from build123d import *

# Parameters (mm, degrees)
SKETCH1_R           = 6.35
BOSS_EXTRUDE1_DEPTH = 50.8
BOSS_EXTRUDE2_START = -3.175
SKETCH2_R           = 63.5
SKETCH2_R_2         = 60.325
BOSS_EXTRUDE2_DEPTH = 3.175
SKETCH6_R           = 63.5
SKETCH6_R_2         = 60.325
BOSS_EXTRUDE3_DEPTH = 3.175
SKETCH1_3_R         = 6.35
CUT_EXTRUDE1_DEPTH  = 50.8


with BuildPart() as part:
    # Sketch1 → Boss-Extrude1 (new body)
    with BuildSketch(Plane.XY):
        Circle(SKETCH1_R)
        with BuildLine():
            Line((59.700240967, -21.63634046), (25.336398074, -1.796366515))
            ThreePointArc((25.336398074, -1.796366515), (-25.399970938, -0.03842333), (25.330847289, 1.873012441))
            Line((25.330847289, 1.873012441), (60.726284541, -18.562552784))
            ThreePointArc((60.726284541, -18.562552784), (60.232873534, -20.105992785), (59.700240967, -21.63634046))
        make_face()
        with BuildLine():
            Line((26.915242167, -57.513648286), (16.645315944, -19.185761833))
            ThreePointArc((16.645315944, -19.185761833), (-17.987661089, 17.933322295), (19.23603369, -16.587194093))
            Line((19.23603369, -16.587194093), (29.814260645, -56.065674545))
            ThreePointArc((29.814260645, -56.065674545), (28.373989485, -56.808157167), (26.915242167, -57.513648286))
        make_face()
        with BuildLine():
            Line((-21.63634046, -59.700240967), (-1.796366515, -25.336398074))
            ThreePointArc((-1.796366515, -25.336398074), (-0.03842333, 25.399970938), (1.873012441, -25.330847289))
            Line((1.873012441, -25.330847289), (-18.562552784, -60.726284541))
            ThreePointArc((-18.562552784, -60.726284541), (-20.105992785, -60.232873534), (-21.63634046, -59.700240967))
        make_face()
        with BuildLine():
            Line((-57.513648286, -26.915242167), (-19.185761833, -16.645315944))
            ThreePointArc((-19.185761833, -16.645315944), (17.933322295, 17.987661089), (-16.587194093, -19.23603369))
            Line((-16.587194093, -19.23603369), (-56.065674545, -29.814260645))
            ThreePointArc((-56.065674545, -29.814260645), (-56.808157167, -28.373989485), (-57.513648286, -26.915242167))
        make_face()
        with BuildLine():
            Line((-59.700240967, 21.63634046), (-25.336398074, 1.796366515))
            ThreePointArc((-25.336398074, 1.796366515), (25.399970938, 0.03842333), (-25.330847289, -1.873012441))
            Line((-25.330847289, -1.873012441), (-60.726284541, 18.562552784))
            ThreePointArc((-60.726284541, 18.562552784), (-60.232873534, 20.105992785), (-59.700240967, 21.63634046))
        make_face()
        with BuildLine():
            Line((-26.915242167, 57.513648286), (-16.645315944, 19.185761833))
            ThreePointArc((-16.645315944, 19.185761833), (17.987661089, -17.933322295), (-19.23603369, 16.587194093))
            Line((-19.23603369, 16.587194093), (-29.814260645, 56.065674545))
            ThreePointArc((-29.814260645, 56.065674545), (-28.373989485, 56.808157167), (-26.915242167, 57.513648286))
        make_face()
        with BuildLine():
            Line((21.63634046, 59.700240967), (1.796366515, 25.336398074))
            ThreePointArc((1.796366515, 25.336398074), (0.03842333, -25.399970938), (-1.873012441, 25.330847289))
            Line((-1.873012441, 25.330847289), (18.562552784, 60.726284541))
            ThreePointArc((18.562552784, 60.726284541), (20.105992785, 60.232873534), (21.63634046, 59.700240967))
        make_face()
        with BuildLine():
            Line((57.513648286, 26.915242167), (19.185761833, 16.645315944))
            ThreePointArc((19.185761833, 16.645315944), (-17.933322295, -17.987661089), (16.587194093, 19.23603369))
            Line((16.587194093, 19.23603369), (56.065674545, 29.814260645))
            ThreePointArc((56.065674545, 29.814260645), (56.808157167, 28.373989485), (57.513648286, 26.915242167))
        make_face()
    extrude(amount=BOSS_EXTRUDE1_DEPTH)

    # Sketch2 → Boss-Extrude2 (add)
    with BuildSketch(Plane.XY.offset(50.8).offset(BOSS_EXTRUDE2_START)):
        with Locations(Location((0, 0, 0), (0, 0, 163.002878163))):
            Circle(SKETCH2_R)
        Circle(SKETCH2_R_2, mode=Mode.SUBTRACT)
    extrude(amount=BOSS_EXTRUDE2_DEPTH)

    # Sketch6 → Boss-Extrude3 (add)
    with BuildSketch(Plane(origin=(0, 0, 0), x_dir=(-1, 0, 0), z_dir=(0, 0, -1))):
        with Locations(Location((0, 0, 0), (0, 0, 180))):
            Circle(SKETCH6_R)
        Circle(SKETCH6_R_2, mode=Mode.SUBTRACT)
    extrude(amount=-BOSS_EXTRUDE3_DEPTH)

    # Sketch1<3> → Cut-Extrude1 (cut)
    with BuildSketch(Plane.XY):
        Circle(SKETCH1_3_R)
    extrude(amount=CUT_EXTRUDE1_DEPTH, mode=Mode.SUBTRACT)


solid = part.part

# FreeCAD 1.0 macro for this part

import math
import FreeCAD as App
import Part
import Sketcher
Q = App.Units.Quantity

doc = App.newDocument("Part")
body = doc.addObject("PartDesign::Body", "Body")

# Sketch on XY plane
sketch1 = doc.addObject("Sketcher::SketchObject", "Sketch")
body.addObject(sketch1)
sketch1.AttachmentSupport = (doc.XY_Plane, [""])
sketch1.MapMode = "FlatFace"
sketch1.addGeometry(Part.LineSegment(App.Vector(25.3, -1.8, 0), App.Vector(59.7, -21.6, 0)), False)
sketch1.addGeometry(Part.ArcOfCircle(Part.Circle(App.Vector(0, 0, 0), App.Vector(0, 0, 1), 63.5), math.radians(-19.92), math.radians(-17)), False)
sketch1.addGeometry(Part.LineSegment(App.Vector(60.7, -18.6, 0), App.Vector(25.3, 1.9, 0)), False)
sketch1.addGeometry(Part.ArcOfCircle(Part.Circle(App.Vector(0, 0, 0), App.Vector(0, 0, 1), 25.4), math.radians(4), math.radians(41)), False)
sketch1.addGeometry(Part.LineSegment(App.Vector(19.2, 16.6, 0), App.Vector(57.5, 26.9, 0)), False)
sketch1.addGeometry(Part.ArcOfCircle(Part.Circle(App.Vector(0, 0, 0), App.Vector(0, 0, 1), 63.5), math.radians(25.08), math.radians(28)), False)
sketch1.addGeometry(Part.LineSegment(App.Vector(56.1, 29.8, 0), App.Vector(16.6, 19.2, 0)), False)
sketch1.addGeometry(Part.ArcOfCircle(Part.Circle(App.Vector(0, 0, 0), App.Vector(0, 0, 1), 25.4), math.radians(49), math.radians(86)), False)
sketch1.addGeometry(Part.LineSegment(App.Vector(1.8, 25.3, 0), App.Vector(21.6, 59.7, 0)), False)
sketch1.addGeometry(Part.ArcOfCircle(Part.Circle(App.Vector(0, 0, 0), App.Vector(0, 0, 1), 63.5), math.radians(70.08), math.radians(73)), False)
sketch1.addGeometry(Part.LineSegment(App.Vector(18.6, 60.7, 0), App.Vector(-1.9, 25.3, 0)), False)
sketch1.addGeometry(Part.ArcOfCircle(Part.Circle(App.Vector(0, 0, 0), App.Vector(0, 0, 1), 25.4), math.radians(94), math.radians(131)), False)
sketch1.addGeometry(Part.LineSegment(App.Vector(-16.6, 19.2, 0), App.Vector(-26.9, 57.5, 0)), False)
sketch1.addGeometry(Part.ArcOfCircle(Part.Circle(App.Vector(0, 0, 0), App.Vector(0, 0, 1), 63.5), math.radians(115.08), math.radians(118)), False)
sketch1.addGeometry(Part.LineSegment(App.Vector(-29.8, 56.1, 0), App.Vector(-19.2, 16.6, 0)), False)
sketch1.addGeometry(Part.ArcOfCircle(Part.Circle(App.Vector(0, 0, 0), App.Vector(0, 0, 1), 25.4), math.radians(139), math.radians(176)), False)
sketch1.addGeometry(Part.LineSegment(App.Vector(-25.3, 1.8, 0), App.Vector(-59.7, 21.6, 0)), False)
sketch1.addGeometry(Part.ArcOfCircle(Part.Circle(App.Vector(0, 0, 0), App.Vector(0, 0, 1), 63.5), math.radians(160.08), math.radians(163)), False)
sketch1.addGeometry(Part.LineSegment(App.Vector(-60.7, 18.6, 0), App.Vector(-25.3, -1.9, 0)), False)
sketch1.addGeometry(Part.ArcOfCircle(Part.Circle(App.Vector(0, 0, 0), App.Vector(0, 0, 1), 25.4), math.radians(-176), math.radians(-139)), False)
sketch1.addGeometry(Part.LineSegment(App.Vector(-19.2, -16.6, 0), App.Vector(-57.5, -26.9, 0)), False)
sketch1.addGeometry(Part.ArcOfCircle(Part.Circle(App.Vector(0, 0, 0), App.Vector(0, 0, 1), 63.5), math.radians(-154.92), math.radians(-152)), False)
sketch1.addGeometry(Part.LineSegment(App.Vector(-56.1, -29.8, 0), App.Vector(-16.6, -19.2, 0)), False)
sketch1.addGeometry(Part.ArcOfCircle(Part.Circle(App.Vector(0, 0, 0), App.Vector(0, 0, 1), 25.4), math.radians(-131), math.radians(-94)), False)
sketch1.addGeometry(Part.LineSegment(App.Vector(-1.8, -25.3, 0), App.Vector(-21.6, -59.7, 0)), False)
sketch1.addGeometry(Part.ArcOfCircle(Part.Circle(App.Vector(0, 0, 0), App.Vector(0, 0, 1), 63.5), math.radians(-109.92), math.radians(-107)), False)
sketch1.addGeometry(Part.LineSegment(App.Vector(-18.6, -60.7, 0), App.Vector(1.9, -25.3, 0)), False)
sketch1.addGeometry(Part.ArcOfCircle(Part.Circle(App.Vector(0, 0, 0), App.Vector(0, 0, 1), 25.4), math.radians(-86), math.radians(-49)), False)
sketch1.addGeometry(Part.LineSegment(App.Vector(16.6, -19.2, 0), App.Vector(26.9, -57.5, 0)), False)
sketch1.addGeometry(Part.ArcOfCircle(Part.Circle(App.Vector(0, 0, 0), App.Vector(0, 0, 1), 63.5), math.radians(-64.92), math.radians(-62)), False)
sketch1.addGeometry(Part.LineSegment(App.Vector(29.8, -56.1, 0), App.Vector(19.2, -16.6, 0)), False)
sketch1.addGeometry(Part.ArcOfCircle(Part.Circle(App.Vector(0, 0, 0), App.Vector(0, 0, 1), 25.4), math.radians(-41), math.radians(-4)), False)
sketch1.addConstraint(Sketcher.Constraint("Coincident", 0, 2, 1, 1))
sketch1.addConstraint(Sketcher.Constraint("Coincident", 1, 2, 2, 1))
sketch1.addConstraint(Sketcher.Constraint("Coincident", 2, 2, 3, 1))
sketch1.addConstraint(Sketcher.Constraint("Coincident", 3, 2, 4, 1))
sketch1.addConstraint(Sketcher.Constraint("Coincident", 4, 2, 5, 1))
sketch1.addConstraint(Sketcher.Constraint("Coincident", 5, 2, 6, 1))
sketch1.addConstraint(Sketcher.Constraint("Coincident", 6, 2, 7, 1))
sketch1.addConstraint(Sketcher.Constraint("Coincident", 7, 2, 8, 1))
sketch1.addConstraint(Sketcher.Constraint("Coincident", 8, 2, 9, 1))
sketch1.addConstraint(Sketcher.Constraint("Coincident", 9, 2, 10, 1))
sketch1.addConstraint(Sketcher.Constraint("Coincident", 10, 2, 11, 1))
sketch1.addConstraint(Sketcher.Constraint("Coincident", 11, 2, 12, 1))
sketch1.addConstraint(Sketcher.Constraint("Coincident", 12, 2, 13, 1))
sketch1.addConstraint(Sketcher.Constraint("Coincident", 13, 2, 14, 1))
sketch1.addConstraint(Sketcher.Constraint("Coincident", 14, 2, 15, 1))
sketch1.addConstraint(Sketcher.Constraint("Coincident", 15, 2, 16, 1))
sketch1.addConstraint(Sketcher.Constraint("Coincident", 16, 2, 17, 1))
sketch1.addConstraint(Sketcher.Constraint("Coincident", 17, 2, 18, 1))
sketch1.addConstraint(Sketcher.Constraint("Coincident", 18, 2, 19, 1))
sketch1.addConstraint(Sketcher.Constraint("Coincident", 19, 2, 20, 1))
sketch1.addConstraint(Sketcher.Constraint("Coincident", 20, 2, 21, 1))
sketch1.addConstraint(Sketcher.Constraint("Coincident", 21, 2, 22, 1))
sketch1.addConstraint(Sketcher.Constraint("Coincident", 22, 2, 23, 1))
sketch1.addConstraint(Sketcher.Constraint("Coincident", 23, 2, 24, 1))
sketch1.addConstraint(Sketcher.Constraint("Coincident", 24, 2, 25, 1))
sketch1.addConstraint(Sketcher.Constraint("Coincident", 25, 2, 26, 1))
sketch1.addConstraint(Sketcher.Constraint("Coincident", 26, 2, 27, 1))
sketch1.addConstraint(Sketcher.Constraint("Coincident", 27, 2, 28, 1))
sketch1.addConstraint(Sketcher.Constraint("Coincident", 28, 2, 29, 1))
sketch1.addConstraint(Sketcher.Constraint("Coincident", 29, 2, 30, 1))
sketch1.addConstraint(Sketcher.Constraint("Coincident", 30, 2, 31, 1))
sketch1.addConstraint(Sketcher.Constraint("Coincident", 31, 2, 0, 1))
sketch1.addConstraint(Sketcher.Constraint("Coincident", 1, 3, -1, 1))
sketch1.addConstraint(Sketcher.Constraint("Coincident", 3, 3, -1, 1))
sketch1.addConstraint(Sketcher.Constraint("Coincident", 5, 3, -1, 1))
sketch1.addConstraint(Sketcher.Constraint("Coincident", 7, 3, -1, 1))
sketch1.addConstraint(Sketcher.Constraint("Coincident", 9, 3, -1, 1))
sketch1.addConstraint(Sketcher.Constraint("Coincident", 11, 3, -1, 1))
sketch1.addConstraint(Sketcher.Constraint("Coincident", 13, 3, -1, 1))
sketch1.addConstraint(Sketcher.Constraint("Coincident", 15, 3, -1, 1))
sketch1.addConstraint(Sketcher.Constraint("Coincident", 17, 3, -1, 1))
sketch1.addConstraint(Sketcher.Constraint("Coincident", 19, 3, -1, 1))
sketch1.addConstraint(Sketcher.Constraint("Coincident", 21, 3, -1, 1))
sketch1.addConstraint(Sketcher.Constraint("Coincident", 23, 3, -1, 1))
sketch1.addConstraint(Sketcher.Constraint("Coincident", 25, 3, -1, 1))
sketch1.addConstraint(Sketcher.Constraint("Coincident", 27, 3, -1, 1))
sketch1.addConstraint(Sketcher.Constraint("Coincident", 29, 3, -1, 1))
sketch1.addConstraint(Sketcher.Constraint("Coincident", 31, 3, -1, 1))
sketch1.addConstraint(Sketcher.Constraint("Equal", 1, 5))
sketch1.addConstraint(Sketcher.Constraint("Equal", 3, 7))
sketch1.addConstraint(Sketcher.Constraint("Equal", 5, 9))
sketch1.addConstraint(Sketcher.Constraint("Equal", 7, 11))
sketch1.addConstraint(Sketcher.Constraint("Equal", 9, 13))
sketch1.addConstraint(Sketcher.Constraint("Equal", 11, 15))
sketch1.addConstraint(Sketcher.Constraint("Equal", 13, 17))
sketch1.addConstraint(Sketcher.Constraint("Equal", 15, 19))
sketch1.addConstraint(Sketcher.Constraint("Equal", 17, 21))
sketch1.addConstraint(Sketcher.Constraint("Equal", 19, 23))
sketch1.addConstraint(Sketcher.Constraint("Equal", 21, 25))
sketch1.addConstraint(Sketcher.Constraint("Equal", 23, 27))
sketch1.addConstraint(Sketcher.Constraint("Equal", 25, 29))
sketch1.addConstraint(Sketcher.Constraint("Equal", 27, 31))
sketch1.addConstraint(Sketcher.Constraint("Parallel", 0, 2))
sketch1.addConstraint(Sketcher.Constraint("Parallel", 4, 6))
sketch1.addConstraint(Sketcher.Constraint("Perpendicular", 2, 8))
sketch1.addConstraint(Sketcher.Constraint("Parallel", 8, 10))
sketch1.addConstraint(Sketcher.Constraint("Perpendicular", 6, 12))
sketch1.addConstraint(Sketcher.Constraint("Parallel", 12, 14))
sketch1.addConstraint(Sketcher.Constraint("Perpendicular", 10, 16))
sketch1.addConstraint(Sketcher.Constraint("Parallel", 16, 18))
sketch1.addConstraint(Sketcher.Constraint("Perpendicular", 14, 20))
sketch1.addConstraint(Sketcher.Constraint("Parallel", 20, 22))
sketch1.addConstraint(Sketcher.Constraint("Perpendicular", 18, 24))
sketch1.addConstraint(Sketcher.Constraint("Parallel", 24, 26))
sketch1.addConstraint(Sketcher.Constraint("Perpendicular", 22, 28))
sketch1.addConstraint(Sketcher.Constraint("Parallel", 28, 30))
sketch1.addConstraint(Sketcher.Constraint("Equal", 0, 4))
sketch1.addConstraint(Sketcher.Constraint("Equal", 2, 6))
sketch1.addConstraint(Sketcher.Constraint("Equal", 4, 8))
sketch1.addConstraint(Sketcher.Constraint("Equal", 6, 10))
sketch1.addConstraint(Sketcher.Constraint("Equal", 8, 12))
sketch1.addConstraint(Sketcher.Constraint("Equal", 10, 14))
sketch1.addConstraint(Sketcher.Constraint("Equal", 12, 16))
sketch1.addConstraint(Sketcher.Constraint("Equal", 14, 18))
sketch1.addConstraint(Sketcher.Constraint("Equal", 16, 20))
sketch1.addConstraint(Sketcher.Constraint("Equal", 18, 22))
sketch1.addConstraint(Sketcher.Constraint("Equal", 20, 24))
sketch1.addConstraint(Sketcher.Constraint("Equal", 22, 26))
sketch1.addConstraint(Sketcher.Constraint("Equal", 24, 28))
sketch1.addConstraint(Sketcher.Constraint("Equal", 26, 30))
sketch1.addConstraint(Sketcher.Constraint("Radius", 3, Q("1 in")))
sketch1.addConstraint(Sketcher.Constraint("Radius", 1, Q("2.5 in")))
sketch1.addConstraint(Sketcher.Constraint("Angle", 0, Q("-30 deg")))
sketch1.addConstraint(Sketcher.Constraint("Angle", 4, Q("15 deg")))
sketch1.addConstraint(Sketcher.Constraint("DistanceY", -1, 1, 7, 2, 25.336398))
sketch1.addConstraint(Sketcher.Constraint("DistanceX", 2, 2, 4, 2, 32.182801))
pad1 = doc.addObject("PartDesign::Pad", "Pad")
body.addObject(pad1)
pad1.Profile = sketch1
pad1.Length = Q("2 in")

# Sketch on XY plane
sketch2 = doc.addObject("Sketcher::SketchObject", "Sketch001")
body.addObject(sketch2)
sketch2.AttachmentSupport = (doc.XY_Plane, [""])
sketch2.MapMode = "FlatFace"
sketch2.AttachmentOffset = App.Placement(App.Vector(0, 0, 1.875 * 25.4), App.Rotation())
sketch2.addGeometry(Part.Circle(App.Vector(0, 0, 0), App.Vector(0, 0, 1), 64), False)
sketch2.addGeometry(Part.Circle(App.Vector(0, 0, 0), App.Vector(0, 0, 1), 60), False)
sketch2.addConstraint(Sketcher.Constraint("Coincident", 0, 3, -1, 1))
sketch2.addConstraint(Sketcher.Constraint("Coincident", 1, 3, -1, 1))
sketch2.addConstraint(Sketcher.Constraint("Diameter", 0, Q("5 in")))
sketch2.addConstraint(Sketcher.Constraint("Diameter", 1, Q("4.75 in")))
pad2 = doc.addObject("PartDesign::Pad", "Pad001")
body.addObject(pad2)
pad2.Profile = sketch2
pad2.Length = Q("0.125 in")

# Sketch on XY plane
sketch3 = doc.addObject("Sketcher::SketchObject", "Sketch002")
body.addObject(sketch3)
sketch3.AttachmentSupport = (doc.XY_Plane, [""])
sketch3.MapMode = "FlatFace"
sketch3.addGeometry(Part.Circle(App.Vector(0, 0, 0), App.Vector(0, 0, 1), 64), False)
sketch3.addGeometry(Part.Circle(App.Vector(0, 0, 0), App.Vector(0, 0, 1), 60), False)
sketch3.addConstraint(Sketcher.Constraint("Coincident", 0, 3, -1, 1))
sketch3.addConstraint(Sketcher.Constraint("Coincident", 1, 3, -1, 1))
sketch3.addConstraint(Sketcher.Constraint("Diameter", 0, Q("5 in")))
sketch3.addConstraint(Sketcher.Constraint("Diameter", 1, Q("4.75 in")))
pad3 = doc.addObject("PartDesign::Pad", "Pad002")
body.addObject(pad3)
pad3.Profile = sketch3
pad3.Length = Q("0.125 in")

# Sketch on XY plane
sketch4 = doc.addObject("Sketcher::SketchObject", "Sketch003")
body.addObject(sketch4)
sketch4.AttachmentSupport = (doc.XY_Plane, [""])
sketch4.MapMode = "FlatFace"
sketch4.addGeometry(Part.Circle(App.Vector(0, 0, 0), App.Vector(0, 0, 1), 6), False)
sketch4.addConstraint(Sketcher.Constraint("Coincident", 0, 3, -1, 1))
sketch4.addConstraint(Sketcher.Constraint("Diameter", 0, Q("0.5 in")))
pocket1 = doc.addObject("PartDesign::Pocket", "Pocket")
body.addObject(pocket1)
pocket1.Profile = sketch4
pocket1.Length = Q("2 in")
pocket1.Reversed = True

doc.recompute()
